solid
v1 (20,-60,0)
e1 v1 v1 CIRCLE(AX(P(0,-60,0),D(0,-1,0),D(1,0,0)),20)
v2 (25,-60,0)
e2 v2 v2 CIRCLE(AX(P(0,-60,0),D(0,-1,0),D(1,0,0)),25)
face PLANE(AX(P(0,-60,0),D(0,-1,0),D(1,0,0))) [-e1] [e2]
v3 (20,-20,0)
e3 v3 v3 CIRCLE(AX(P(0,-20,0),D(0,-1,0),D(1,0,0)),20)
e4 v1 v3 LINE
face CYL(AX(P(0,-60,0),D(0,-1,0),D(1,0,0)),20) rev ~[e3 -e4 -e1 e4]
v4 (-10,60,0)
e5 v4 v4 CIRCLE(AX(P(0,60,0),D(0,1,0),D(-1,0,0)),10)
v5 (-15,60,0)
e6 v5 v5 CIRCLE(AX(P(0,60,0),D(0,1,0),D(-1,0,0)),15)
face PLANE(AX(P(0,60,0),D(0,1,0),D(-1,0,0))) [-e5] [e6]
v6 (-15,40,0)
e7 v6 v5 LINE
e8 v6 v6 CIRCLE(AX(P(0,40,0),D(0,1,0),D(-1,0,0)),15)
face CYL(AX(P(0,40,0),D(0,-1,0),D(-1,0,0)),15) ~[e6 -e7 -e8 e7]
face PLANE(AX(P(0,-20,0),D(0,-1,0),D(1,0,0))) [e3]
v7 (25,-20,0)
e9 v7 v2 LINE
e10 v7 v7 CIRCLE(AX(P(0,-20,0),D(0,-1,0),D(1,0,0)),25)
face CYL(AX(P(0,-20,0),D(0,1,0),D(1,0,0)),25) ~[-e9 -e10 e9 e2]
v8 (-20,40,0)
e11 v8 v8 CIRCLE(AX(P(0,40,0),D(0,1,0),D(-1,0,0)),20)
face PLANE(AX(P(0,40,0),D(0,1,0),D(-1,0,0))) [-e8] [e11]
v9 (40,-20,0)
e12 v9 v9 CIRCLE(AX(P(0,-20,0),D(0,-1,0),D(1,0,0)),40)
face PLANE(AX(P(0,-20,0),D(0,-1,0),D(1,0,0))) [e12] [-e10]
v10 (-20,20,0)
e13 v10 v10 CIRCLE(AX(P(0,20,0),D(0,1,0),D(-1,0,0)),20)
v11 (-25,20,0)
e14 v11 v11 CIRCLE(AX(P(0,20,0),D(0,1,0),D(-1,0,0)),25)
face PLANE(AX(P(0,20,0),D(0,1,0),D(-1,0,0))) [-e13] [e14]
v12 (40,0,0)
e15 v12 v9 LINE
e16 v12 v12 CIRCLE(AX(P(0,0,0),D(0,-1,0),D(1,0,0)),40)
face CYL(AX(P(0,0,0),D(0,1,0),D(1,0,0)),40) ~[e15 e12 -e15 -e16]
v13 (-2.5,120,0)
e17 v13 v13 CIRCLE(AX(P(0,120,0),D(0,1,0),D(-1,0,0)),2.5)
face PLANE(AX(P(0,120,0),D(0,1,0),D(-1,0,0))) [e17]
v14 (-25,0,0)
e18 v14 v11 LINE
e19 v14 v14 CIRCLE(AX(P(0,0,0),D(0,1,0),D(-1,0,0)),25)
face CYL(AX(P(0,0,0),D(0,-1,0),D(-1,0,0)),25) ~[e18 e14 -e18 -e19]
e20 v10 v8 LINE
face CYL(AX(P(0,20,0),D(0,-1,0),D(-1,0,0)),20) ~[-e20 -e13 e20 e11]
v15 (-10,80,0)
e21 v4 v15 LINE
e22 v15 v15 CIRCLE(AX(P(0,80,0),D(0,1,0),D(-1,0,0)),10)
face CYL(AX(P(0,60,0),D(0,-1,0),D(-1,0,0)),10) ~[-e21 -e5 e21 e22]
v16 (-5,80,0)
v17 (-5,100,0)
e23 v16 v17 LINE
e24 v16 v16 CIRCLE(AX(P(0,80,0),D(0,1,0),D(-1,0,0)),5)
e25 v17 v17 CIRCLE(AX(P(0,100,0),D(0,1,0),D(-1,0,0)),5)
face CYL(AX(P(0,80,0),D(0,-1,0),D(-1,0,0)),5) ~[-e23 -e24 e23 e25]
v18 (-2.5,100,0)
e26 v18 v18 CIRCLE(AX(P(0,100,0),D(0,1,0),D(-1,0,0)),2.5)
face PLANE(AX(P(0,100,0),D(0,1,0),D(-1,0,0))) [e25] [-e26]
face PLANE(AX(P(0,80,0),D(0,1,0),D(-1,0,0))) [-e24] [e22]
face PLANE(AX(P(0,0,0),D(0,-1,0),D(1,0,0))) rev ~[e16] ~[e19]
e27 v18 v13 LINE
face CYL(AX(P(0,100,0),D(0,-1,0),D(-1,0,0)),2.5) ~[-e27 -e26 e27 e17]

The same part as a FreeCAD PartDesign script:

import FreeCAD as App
import Part
import Sketcher
Q = App.Units.Quantity

doc = App.newDocument("Part")
body = doc.addObject("PartDesign::Body", "Body")

# Sketch on XZ plane
sketch1 = doc.addObject("Sketcher::SketchObject", "Sketch")
body.addObject(sketch1)
sketch1.AttachmentSupport = (doc.XZ_Plane, [""])
sketch1.MapMode = "FlatFace"
sketch1.addGeometry(Part.Circle(App.Vector(0, 0, 0), App.Vector(0, 0, 1), 40), False)
sketch1.addConstraint([
    Sketcher.Constraint("Coincident", 0, 3, -1, 1),
    Sketcher.Constraint("Diameter", 0, Q("80 mm")),
])
pad1 = doc.addObject("PartDesign::Pad", "Pad")
body.addObject(pad1)
pad1.Profile = sketch1
pad1.Length = 20

# Sketch on XZ plane
sketch2 = doc.addObject("Sketcher::SketchObject", "Sketch001")
body.addObject(sketch2)
sketch2.AttachmentSupport = (doc.XZ_Plane, [""])
sketch2.MapMode = "FlatFace"
sketch2.AttachmentOffset = App.Placement(App.Vector(0, 0, 20), App.Rotation())
sketch2.addGeometry(Part.Circle(App.Vector(0, 0, 0), App.Vector(0, 0, 1), 25), False)
sketch2.addConstraint([
    Sketcher.Constraint("Coincident", 0, 3, -1, 1),
    Sketcher.Constraint("Diameter", 0, Q("50 mm")),
])
pad2 = doc.addObject("PartDesign::Pad", "Pad001")
body.addObject(pad2)
pad2.Profile = sketch2
pad2.Length = 40

# Sketch on XZ plane
sketch3 = doc.addObject("Sketcher::SketchObject", "Sketch002")
body.addObject(sketch3)
sketch3.AttachmentSupport = (doc.XZ_Plane, [""])
sketch3.MapMode = "FlatFace"
sketch3.AttachmentOffset = App.Placement(App.Vector(0, 0, 60), App.Rotation())
sketch3.addGeometry(Part.Circle(App.Vector(0, 0, 0), App.Vector(0, 0, 1), 20), False)
sketch3.addConstraint([
    Sketcher.Constraint("Coincident", 0, 3, -1, 1),
    Sketcher.Constraint("Diameter", 0, Q("40 mm")),
])
pocket1 = doc.addObject("PartDesign::Pocket", "Pocket")
body.addObject(pocket1)
pocket1.Profile = sketch3
pocket1.Length = 40

# Sketch on XZ plane
sketch4 = doc.addObject("Sketcher::SketchObject", "Sketch003")
body.addObject(sketch4)
sketch4.AttachmentSupport = (doc.XZ_Plane, [""])
sketch4.MapMode = "FlatFace"
sketch4.addGeometry(Part.Circle(App.Vector(0, 0, 0), App.Vector(0, 0, 1), 25), False)
sketch4.addConstraint([
    Sketcher.Constraint("Coincident", 0, 3, -1, 1),
    Sketcher.Constraint("Diameter", 0, Q("50 mm")),
])
pad3 = doc.addObject("PartDesign::Pad", "Pad002")
body.addObject(pad3)
pad3.Profile = sketch4
pad3.Length = 20
pad3.Reversed = True

# Sketch on XZ plane
sketch5 = doc.addObject("Sketcher::SketchObject", "Sketch004")
body.addObject(sketch5)
sketch5.AttachmentSupport = (doc.XZ_Plane, [""])
sketch5.MapMode = "FlatFace"
sketch5.AttachmentOffset = App.Placement(App.Vector(0, 0, -20), App.Rotation())
sketch5.addGeometry(Part.Circle(App.Vector(0, 0, 0), App.Vector(0, 0, 1), 20), False)
sketch5.addConstraint([
    Sketcher.Constraint("Coincident", 0, 3, -1, 1),
    Sketcher.Constraint("Diameter", 0, Q("40 mm")),
])
pad4 = doc.addObject("PartDesign::Pad", "Pad003")
body.addObject(pad4)
pad4.Profile = sketch5
pad4.Length = 20
pad4.Reversed = True

# Sketch on XZ plane
sketch6 = doc.addObject("Sketcher::SketchObject", "Sketch005")
body.addObject(sketch6)
sketch6.AttachmentSupport = (doc.XZ_Plane, [""])
sketch6.MapMode = "FlatFace"
sketch6.AttachmentOffset = App.Placement(App.Vector(0, 0, -40), App.Rotation())
sketch6.addGeometry(Part.Circle(App.Vector(0, 0, 0), App.Vector(0, 0, 1), 15), False)
sketch6.addConstraint([
    Sketcher.Constraint("Coincident", 0, 3, -1, 1),
    Sketcher.Constraint("Diameter", 0, Q("30 mm")),
])
pad5 = doc.addObject("PartDesign::Pad", "Pad004")
body.addObject(pad5)
pad5.Profile = sketch6
pad5.Length = 20
pad5.Reversed = True

# Sketch on XZ plane
sketch7 = doc.addObject("Sketcher::SketchObject", "Sketch006")
body.addObject(sketch7)
sketch7.AttachmentSupport = (doc.XZ_Plane, [""])
sketch7.MapMode = "FlatFace"
sketch7.AttachmentOffset = App.Placement(App.Vector(0, 0, -60), App.Rotation())
sketch7.addGeometry(Part.Circle(App.Vector(0, 0, 0), App.Vector(0, 0, 1), 10), False)
sketch7.addConstraint([
    Sketcher.Constraint("Coincident", 0, 3, -1, 1),
    Sketcher.Constraint("Diameter", 0, Q("20 mm")),
])
pad6 = doc.addObject("PartDesign::Pad", "Pad005")
body.addObject(pad6)
pad6.Profile = sketch7
pad6.Length = 20
pad6.Reversed = True

# Sketch on XZ plane
sketch8 = doc.addObject("Sketcher::SketchObject", "Sketch007")
body.addObject(sketch8)
sketch8.AttachmentSupport = (doc.XZ_Plane, [""])
sketch8.MapMode = "FlatFace"
sketch8.AttachmentOffset = App.Placement(App.Vector(0, 0, -80), App.Rotation())
sketch8.addGeometry(Part.Circle(App.Vector(0, 0, 0), App.Vector(0, 0, 1), 5), False)
sketch8.addConstraint([
    Sketcher.Constraint("Coincident", 0, 3, -1, 1),
    Sketcher.Constraint("Diameter", 0, Q("10 mm")),
])
pad7 = doc.addObject("PartDesign::Pad", "Pad006")
body.addObject(pad7)
pad7.Profile = sketch8
pad7.Length = 20
pad7.Reversed = True

# Sketch on XZ plane
sketch9 = doc.addObject("Sketcher::SketchObject", "Sketch008")
body.addObject(sketch9)
sketch9.AttachmentSupport = (doc.XZ_Plane, [""])
sketch9.MapMode = "FlatFace"
sketch9.AttachmentOffset = App.Placement(App.Vector(0, 0, -100), App.Rotation())
sketch9.addGeometry(Part.Circle(App.Vector(0, 0, 0), App.Vector(0, 0, 1), 2.5), False)
sketch9.addConstraint([
    Sketcher.Constraint("Coincident", 0, 3, -1, 1),
    Sketcher.Constraint("Diameter", 0, Q("5 mm")),
])
pad8 = doc.addObject("PartDesign::Pad", "Pad007")
body.addObject(pad8)
pad8.Profile = sketch9
pad8.Length = 20
pad8.Reversed = True

doc.recompute()
